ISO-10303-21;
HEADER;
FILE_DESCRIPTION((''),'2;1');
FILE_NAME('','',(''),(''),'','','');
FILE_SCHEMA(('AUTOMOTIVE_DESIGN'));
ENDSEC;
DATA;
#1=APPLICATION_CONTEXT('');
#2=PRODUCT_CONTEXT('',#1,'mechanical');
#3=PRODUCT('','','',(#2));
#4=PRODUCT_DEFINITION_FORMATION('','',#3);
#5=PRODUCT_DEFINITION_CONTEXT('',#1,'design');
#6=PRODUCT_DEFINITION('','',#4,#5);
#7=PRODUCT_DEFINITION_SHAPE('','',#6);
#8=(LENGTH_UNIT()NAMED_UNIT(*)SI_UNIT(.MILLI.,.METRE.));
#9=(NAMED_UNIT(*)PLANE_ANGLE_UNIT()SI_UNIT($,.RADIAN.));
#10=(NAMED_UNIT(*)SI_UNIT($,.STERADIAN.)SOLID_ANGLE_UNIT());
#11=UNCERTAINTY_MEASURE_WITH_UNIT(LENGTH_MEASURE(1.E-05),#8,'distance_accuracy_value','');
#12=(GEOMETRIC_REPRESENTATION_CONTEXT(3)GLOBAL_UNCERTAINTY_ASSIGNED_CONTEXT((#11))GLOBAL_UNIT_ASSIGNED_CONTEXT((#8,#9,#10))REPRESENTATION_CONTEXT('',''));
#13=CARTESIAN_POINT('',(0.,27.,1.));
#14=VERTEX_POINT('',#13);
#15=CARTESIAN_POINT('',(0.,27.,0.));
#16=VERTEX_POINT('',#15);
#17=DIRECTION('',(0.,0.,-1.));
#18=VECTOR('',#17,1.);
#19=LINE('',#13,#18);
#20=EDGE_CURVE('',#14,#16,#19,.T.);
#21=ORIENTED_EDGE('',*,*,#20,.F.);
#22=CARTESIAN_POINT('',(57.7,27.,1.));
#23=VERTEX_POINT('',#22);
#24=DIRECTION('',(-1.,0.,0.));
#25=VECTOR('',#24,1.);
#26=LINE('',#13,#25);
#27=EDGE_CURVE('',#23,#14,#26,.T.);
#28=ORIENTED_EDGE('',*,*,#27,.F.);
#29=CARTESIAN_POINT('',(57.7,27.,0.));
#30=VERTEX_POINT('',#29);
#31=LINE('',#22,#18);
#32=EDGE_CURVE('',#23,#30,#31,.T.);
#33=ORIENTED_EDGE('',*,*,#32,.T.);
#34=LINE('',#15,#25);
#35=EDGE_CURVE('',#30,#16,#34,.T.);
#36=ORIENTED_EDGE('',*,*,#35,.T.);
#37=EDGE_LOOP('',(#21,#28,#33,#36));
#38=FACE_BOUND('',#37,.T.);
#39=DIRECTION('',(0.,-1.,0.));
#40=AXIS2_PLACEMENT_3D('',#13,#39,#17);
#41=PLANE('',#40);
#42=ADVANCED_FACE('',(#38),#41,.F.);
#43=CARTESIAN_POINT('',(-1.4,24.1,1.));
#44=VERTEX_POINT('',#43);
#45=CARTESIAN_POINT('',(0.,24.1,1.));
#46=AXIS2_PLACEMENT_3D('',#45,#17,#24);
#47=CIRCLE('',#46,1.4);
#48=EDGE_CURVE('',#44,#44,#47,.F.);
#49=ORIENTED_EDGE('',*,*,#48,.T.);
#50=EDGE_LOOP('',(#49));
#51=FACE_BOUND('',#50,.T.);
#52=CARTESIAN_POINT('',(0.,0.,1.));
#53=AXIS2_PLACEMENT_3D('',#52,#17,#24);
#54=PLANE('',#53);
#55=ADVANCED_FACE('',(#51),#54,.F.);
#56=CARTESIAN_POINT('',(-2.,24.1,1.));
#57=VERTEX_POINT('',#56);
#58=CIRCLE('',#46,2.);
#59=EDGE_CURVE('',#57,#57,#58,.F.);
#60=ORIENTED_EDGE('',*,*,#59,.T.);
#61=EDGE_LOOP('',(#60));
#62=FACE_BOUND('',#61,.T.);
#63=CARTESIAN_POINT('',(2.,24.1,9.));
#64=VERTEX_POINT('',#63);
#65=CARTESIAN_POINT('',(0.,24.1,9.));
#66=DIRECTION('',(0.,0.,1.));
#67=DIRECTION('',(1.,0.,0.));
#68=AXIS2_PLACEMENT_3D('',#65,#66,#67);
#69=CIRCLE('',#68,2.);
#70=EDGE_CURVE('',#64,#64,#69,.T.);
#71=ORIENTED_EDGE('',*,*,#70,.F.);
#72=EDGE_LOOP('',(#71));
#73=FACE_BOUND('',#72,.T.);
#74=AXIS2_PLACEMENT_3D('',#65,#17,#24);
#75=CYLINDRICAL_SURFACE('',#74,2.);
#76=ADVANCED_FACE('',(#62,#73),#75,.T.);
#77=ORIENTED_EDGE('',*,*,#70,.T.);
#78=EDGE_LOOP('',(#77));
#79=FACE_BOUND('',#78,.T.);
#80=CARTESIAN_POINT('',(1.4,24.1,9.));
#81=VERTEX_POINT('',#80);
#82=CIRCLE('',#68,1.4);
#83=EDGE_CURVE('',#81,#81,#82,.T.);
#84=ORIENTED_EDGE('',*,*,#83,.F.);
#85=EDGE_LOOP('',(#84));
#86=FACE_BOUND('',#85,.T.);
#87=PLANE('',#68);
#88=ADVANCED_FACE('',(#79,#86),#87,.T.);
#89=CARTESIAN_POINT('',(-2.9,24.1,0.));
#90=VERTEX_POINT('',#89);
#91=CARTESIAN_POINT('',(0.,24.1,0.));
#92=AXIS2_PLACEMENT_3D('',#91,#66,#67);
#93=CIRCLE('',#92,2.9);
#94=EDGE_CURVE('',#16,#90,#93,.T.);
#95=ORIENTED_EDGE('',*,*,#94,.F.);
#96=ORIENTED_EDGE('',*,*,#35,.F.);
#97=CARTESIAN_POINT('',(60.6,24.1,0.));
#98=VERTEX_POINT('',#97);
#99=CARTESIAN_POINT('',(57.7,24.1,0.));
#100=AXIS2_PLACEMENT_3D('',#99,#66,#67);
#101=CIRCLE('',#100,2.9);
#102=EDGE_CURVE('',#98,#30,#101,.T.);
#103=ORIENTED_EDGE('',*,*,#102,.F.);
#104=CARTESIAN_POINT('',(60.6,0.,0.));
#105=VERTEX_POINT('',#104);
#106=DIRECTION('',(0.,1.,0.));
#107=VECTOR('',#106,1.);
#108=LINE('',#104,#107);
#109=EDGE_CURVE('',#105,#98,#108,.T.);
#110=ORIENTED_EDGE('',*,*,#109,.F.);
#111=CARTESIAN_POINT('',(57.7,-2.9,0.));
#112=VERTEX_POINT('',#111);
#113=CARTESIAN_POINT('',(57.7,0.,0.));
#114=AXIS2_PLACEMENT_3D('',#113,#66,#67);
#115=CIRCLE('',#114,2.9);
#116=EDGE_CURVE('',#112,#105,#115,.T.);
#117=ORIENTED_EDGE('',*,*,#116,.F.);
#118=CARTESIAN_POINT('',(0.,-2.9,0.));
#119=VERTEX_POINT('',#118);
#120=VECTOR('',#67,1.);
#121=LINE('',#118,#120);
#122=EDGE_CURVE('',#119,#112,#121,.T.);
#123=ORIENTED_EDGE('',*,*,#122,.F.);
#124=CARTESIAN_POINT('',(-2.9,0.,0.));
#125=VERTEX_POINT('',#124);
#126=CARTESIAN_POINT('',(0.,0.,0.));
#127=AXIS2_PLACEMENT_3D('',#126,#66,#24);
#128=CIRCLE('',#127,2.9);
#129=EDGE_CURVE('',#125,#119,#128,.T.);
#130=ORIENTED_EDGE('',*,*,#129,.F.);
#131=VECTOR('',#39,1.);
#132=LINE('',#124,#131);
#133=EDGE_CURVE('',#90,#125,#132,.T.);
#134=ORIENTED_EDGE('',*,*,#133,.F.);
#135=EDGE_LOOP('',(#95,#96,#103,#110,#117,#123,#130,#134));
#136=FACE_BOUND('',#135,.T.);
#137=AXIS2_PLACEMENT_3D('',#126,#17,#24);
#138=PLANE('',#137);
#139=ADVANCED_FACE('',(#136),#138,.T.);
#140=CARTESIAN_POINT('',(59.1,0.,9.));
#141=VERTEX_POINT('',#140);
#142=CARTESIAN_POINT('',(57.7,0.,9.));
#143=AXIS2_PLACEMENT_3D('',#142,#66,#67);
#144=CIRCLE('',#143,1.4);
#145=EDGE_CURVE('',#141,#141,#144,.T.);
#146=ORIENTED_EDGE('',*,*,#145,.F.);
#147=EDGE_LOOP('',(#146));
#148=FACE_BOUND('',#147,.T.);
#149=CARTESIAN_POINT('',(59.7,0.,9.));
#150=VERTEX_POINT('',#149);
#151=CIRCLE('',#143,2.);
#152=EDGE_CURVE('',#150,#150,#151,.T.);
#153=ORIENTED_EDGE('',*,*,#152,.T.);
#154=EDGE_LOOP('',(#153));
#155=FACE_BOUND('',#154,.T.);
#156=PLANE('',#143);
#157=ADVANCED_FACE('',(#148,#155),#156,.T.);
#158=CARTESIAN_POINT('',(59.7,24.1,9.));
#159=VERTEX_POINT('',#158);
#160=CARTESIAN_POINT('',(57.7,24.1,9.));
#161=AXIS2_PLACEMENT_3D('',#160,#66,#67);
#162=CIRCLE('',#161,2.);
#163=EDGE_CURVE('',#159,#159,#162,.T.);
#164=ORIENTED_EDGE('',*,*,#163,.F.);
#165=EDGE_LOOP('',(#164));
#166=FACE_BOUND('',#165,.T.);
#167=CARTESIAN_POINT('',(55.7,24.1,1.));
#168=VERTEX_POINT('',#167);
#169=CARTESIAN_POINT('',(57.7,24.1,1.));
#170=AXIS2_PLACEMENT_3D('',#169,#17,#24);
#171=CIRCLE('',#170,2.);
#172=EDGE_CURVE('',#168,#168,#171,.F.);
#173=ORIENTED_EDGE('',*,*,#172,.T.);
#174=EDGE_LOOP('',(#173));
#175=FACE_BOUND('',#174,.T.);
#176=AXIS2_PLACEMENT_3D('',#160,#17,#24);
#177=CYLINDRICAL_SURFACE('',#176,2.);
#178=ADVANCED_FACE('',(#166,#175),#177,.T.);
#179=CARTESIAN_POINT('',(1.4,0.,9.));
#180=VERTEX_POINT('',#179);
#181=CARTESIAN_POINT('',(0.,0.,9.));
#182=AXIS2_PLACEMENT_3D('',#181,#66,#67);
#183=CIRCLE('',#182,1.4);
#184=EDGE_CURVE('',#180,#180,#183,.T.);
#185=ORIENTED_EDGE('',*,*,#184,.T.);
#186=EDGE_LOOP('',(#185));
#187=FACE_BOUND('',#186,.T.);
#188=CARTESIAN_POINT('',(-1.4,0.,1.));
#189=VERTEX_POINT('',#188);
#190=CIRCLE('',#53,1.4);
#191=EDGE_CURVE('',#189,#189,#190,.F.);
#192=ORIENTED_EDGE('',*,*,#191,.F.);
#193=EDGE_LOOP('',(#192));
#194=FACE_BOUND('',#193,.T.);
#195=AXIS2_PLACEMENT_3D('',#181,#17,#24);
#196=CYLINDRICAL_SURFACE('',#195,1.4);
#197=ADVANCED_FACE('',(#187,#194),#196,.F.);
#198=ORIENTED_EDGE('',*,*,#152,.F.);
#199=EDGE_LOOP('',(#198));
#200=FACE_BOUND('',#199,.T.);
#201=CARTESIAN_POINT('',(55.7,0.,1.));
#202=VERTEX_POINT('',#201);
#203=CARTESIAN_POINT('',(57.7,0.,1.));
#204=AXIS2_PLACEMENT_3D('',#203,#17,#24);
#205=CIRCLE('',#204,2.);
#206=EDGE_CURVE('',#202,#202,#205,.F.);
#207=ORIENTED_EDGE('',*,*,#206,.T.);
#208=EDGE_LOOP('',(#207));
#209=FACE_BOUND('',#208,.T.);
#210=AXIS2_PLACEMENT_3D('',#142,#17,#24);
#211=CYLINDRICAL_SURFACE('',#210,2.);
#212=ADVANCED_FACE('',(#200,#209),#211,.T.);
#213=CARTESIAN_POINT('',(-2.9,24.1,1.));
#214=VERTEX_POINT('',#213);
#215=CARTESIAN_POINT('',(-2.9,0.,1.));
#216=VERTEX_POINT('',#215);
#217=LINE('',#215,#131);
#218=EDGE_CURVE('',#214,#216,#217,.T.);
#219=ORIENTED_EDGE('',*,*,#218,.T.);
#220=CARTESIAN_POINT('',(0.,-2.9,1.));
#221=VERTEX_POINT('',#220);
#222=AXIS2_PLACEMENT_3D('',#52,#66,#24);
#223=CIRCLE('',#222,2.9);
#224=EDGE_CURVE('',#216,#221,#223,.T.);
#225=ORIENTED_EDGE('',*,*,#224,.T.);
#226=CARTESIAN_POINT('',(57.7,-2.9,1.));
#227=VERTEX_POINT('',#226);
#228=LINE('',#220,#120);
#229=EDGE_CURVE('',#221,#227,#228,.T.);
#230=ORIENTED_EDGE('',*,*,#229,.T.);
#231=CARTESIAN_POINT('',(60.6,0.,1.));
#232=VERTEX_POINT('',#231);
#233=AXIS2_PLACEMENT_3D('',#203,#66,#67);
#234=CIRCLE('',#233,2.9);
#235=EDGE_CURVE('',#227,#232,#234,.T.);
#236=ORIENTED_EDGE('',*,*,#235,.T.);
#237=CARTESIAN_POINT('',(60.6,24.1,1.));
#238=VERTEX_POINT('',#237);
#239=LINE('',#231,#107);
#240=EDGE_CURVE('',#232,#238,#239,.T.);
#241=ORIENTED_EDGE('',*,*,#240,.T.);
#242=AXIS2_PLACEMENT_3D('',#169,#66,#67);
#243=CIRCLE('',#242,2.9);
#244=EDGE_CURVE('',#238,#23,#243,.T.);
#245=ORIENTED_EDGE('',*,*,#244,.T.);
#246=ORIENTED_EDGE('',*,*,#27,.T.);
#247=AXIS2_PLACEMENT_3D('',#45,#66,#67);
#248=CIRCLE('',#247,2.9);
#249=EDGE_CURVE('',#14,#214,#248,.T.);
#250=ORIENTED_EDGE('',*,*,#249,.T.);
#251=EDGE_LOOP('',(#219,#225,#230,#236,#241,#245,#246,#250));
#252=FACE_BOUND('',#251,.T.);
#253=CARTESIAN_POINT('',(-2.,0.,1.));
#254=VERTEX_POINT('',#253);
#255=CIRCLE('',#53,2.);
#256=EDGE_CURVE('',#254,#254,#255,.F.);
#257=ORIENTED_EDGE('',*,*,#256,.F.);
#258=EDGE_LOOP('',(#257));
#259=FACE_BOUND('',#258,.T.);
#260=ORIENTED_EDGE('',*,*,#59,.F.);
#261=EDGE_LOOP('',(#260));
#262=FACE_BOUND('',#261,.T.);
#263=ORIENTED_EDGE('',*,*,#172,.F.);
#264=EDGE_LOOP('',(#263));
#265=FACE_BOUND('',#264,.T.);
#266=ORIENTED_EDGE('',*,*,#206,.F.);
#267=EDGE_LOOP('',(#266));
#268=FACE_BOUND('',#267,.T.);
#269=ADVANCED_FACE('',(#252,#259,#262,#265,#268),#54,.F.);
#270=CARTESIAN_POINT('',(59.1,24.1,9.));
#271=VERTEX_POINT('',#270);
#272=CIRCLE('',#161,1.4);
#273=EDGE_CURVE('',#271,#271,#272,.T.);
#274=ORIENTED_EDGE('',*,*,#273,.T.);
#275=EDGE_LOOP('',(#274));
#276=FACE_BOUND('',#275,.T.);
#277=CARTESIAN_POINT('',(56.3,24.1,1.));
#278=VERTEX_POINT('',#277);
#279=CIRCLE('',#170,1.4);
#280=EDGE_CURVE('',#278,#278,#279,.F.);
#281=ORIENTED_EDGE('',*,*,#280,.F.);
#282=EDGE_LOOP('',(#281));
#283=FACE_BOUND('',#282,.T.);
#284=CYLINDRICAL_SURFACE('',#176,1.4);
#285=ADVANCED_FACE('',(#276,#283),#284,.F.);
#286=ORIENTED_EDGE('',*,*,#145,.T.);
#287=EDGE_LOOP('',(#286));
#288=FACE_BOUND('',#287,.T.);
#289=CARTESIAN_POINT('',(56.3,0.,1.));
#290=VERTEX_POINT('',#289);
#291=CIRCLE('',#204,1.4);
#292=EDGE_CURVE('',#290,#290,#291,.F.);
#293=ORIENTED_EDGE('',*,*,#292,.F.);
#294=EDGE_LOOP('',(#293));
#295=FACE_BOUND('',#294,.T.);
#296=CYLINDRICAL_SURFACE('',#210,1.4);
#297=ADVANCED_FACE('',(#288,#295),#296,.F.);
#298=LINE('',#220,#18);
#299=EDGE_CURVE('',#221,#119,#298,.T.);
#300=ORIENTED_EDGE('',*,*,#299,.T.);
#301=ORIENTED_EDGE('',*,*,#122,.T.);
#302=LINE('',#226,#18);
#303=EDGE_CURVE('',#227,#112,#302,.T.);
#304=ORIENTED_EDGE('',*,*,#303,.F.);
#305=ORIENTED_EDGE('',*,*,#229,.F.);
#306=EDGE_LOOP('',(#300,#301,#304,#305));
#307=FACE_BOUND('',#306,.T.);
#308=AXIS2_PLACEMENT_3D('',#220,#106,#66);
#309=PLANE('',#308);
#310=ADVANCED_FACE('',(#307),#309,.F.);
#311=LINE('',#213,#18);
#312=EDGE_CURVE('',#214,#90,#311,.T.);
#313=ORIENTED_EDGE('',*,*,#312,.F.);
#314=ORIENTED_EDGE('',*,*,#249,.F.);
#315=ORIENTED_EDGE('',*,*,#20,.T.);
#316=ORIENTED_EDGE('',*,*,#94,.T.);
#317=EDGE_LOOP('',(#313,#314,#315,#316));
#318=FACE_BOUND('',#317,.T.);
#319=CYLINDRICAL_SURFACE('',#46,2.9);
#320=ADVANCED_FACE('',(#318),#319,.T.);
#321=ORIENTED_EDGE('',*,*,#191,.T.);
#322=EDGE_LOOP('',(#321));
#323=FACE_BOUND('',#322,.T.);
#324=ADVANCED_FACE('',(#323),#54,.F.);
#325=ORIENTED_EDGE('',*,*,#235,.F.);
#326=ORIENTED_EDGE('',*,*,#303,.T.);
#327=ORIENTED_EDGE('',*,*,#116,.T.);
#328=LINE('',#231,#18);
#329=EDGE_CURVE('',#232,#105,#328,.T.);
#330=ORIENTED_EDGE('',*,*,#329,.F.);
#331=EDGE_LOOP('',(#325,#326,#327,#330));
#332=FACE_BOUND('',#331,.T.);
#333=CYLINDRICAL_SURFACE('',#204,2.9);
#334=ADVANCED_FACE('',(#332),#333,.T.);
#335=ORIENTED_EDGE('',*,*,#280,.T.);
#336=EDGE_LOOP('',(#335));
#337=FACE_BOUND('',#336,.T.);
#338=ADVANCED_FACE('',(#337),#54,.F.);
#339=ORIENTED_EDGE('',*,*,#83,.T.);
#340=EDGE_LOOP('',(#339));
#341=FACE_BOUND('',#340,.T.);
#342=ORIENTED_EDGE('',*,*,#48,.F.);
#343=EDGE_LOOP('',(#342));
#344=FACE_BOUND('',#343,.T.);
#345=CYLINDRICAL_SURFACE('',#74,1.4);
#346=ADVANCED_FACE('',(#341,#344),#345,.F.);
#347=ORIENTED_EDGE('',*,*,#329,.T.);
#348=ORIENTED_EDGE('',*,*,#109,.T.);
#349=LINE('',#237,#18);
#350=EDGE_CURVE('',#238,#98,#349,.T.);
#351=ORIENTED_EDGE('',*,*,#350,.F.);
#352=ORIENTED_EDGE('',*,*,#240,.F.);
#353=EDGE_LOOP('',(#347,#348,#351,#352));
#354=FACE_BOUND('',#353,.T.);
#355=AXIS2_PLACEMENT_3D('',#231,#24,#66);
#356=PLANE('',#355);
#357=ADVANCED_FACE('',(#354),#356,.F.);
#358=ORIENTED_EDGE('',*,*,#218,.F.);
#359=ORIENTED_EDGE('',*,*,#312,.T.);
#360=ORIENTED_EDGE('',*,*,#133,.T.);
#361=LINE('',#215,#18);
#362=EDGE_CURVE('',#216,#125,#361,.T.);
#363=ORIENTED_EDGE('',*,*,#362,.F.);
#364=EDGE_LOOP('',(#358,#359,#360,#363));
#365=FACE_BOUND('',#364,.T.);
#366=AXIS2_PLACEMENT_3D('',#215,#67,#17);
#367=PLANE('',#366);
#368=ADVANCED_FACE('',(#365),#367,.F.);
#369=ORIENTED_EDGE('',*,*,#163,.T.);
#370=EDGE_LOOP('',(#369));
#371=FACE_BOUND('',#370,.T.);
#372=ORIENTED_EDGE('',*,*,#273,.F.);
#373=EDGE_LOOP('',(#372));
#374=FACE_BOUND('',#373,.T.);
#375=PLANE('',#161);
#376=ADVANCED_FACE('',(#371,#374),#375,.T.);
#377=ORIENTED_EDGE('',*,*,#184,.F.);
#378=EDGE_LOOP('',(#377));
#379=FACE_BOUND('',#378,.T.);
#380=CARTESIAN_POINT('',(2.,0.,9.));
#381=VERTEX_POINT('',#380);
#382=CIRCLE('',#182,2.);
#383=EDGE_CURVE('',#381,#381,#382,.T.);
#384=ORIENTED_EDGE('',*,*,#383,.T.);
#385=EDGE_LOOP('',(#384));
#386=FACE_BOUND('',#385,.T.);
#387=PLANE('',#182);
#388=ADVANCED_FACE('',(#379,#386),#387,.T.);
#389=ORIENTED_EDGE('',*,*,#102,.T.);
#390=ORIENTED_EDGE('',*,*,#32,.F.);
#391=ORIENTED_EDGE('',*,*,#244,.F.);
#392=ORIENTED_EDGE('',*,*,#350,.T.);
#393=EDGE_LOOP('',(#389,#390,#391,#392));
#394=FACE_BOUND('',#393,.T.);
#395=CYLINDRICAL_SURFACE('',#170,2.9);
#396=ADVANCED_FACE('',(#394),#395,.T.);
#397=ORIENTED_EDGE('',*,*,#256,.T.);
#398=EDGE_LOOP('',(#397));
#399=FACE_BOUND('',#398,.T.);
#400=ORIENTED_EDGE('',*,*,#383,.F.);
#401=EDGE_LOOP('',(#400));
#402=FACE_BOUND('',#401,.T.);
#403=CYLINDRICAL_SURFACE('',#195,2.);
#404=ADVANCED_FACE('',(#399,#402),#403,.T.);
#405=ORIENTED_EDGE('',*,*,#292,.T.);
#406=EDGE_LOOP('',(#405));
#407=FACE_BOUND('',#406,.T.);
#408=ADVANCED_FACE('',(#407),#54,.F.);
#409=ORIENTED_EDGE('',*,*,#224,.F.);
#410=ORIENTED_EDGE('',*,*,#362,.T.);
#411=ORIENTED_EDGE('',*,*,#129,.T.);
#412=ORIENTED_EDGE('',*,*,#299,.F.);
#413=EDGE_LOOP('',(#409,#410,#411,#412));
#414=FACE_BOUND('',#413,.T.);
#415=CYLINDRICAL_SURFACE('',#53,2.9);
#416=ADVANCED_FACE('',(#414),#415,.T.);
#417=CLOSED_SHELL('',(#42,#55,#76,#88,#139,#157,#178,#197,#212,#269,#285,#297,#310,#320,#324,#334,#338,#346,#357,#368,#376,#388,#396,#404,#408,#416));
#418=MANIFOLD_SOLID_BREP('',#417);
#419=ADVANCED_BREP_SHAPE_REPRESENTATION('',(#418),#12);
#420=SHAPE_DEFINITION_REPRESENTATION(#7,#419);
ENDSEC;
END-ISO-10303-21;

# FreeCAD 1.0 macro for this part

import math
import FreeCAD as App
import Part
import Sketcher
from FreeCAD import Vector
Q = App.Units.Quantity

doc = App.newDocument("Part")
body = doc.addObject("PartDesign::Body", "Body")

sketch1 = body.newObject("Sketcher::SketchObject", "Sketch")
sketch1.AttachmentSupport = (doc.getObject("XY_Plane"), [""])
sketch1.MapMode = "FlatFace"
sketch1.addGeometry([
    Part.LineSegment(Vector(0, -2.9, 0), Vector(57.7, -2.9, 0)),
    Part.ArcOfCircle(Part.Circle(Vector(57.7, 0, 0), Vector(0, 0, 1), 2.9), math.radians(-90), math.radians(0)),
    Part.LineSegment(Vector(60.6, 0, 0), Vector(60.6, 24.1, 0)),
    Part.ArcOfCircle(Part.Circle(Vector(57.7, 24.1, 0), Vector(0, 0, 1), 2.9), math.radians(0), math.radians(90)),
    Part.LineSegment(Vector(57.7, 27, 0), Vector(0, 27, 0)),
    Part.ArcOfCircle(Part.Circle(Vector(0, 24.1, 0), Vector(0, 0, 1), 2.9), math.radians(90), math.radians(180)),
    Part.LineSegment(Vector(-2.9, 24.1, 0), Vector(-2.9, 0, 0)),
    Part.ArcOfCircle(Part.Circle(Vector(0, 0, 0), Vector(0, 0, 1), 2.9), math.radians(-180), math.radians(-90)),
], False)
sketch1.addConstraint([
    Sketcher.Constraint("Tangent", 0, 2, 1, 1),
    Sketcher.Constraint("Tangent", 1, 2, 2, 1),
    Sketcher.Constraint("Tangent", 2, 2, 3, 1),
    Sketcher.Constraint("Tangent", 3, 2, 4, 1),
    Sketcher.Constraint("Tangent", 4, 2, 5, 1),
    Sketcher.Constraint("Tangent", 5, 2, 6, 1),
    Sketcher.Constraint("Tangent", 6, 2, 7, 1),
    Sketcher.Constraint("Tangent", 7, 2, 0, 1),
    Sketcher.Constraint("Horizontal", 0),
    Sketcher.Constraint("Vertical", 2),
    Sketcher.Constraint("Horizontal", 4),
    Sketcher.Constraint("Vertical", 6),
    Sketcher.Constraint("Coincident", 7, 3, -1, 1),
    Sketcher.Constraint("Equal", 1, 3),
    Sketcher.Constraint("Equal", 3, 5),
    Sketcher.Constraint("Equal", 5, 7),
    Sketcher.Constraint("Radius", 1, Q("2.9 mm")),
    Sketcher.Constraint("DistanceX", 0, 1, 0, 2, Q("57.7 mm")),
    Sketcher.Constraint("DistanceY", 2, 1, 2, 2, Q("24.1 mm")),
])
pad1 = body.newObject("PartDesign::Pad", "Pad")
pad1.Profile = sketch1
pad1.Length = 1

sketch2 = body.newObject("Sketcher::SketchObject", "Sketch001")
sketch2.AttachmentSupport = (doc.getObject("XY_Plane"), [""])
sketch2.MapMode = "FlatFace"
sketch2.addGeometry([
    Part.Circle(Vector(0, 0, 0), Vector(0, 0, 1), 2),
    Part.Circle(Vector(0, 0, 0), Vector(0, 0, 1), 1.4),
    Part.Circle(Vector(0, 24.1, 0), Vector(0, 0, 1), 2),
    Part.Circle(Vector(0, 24.1, 0), Vector(0, 0, 1), 1.4),
    Part.Circle(Vector(57.7, 0, 0), Vector(0, 0, 1), 2),
    Part.Circle(Vector(57.7, 0, 0), Vector(0, 0, 1), 1.4),
    Part.Circle(Vector(57.7, 24.1, 0), Vector(0, 0, 1), 2),
    Part.Circle(Vector(57.7, 24.1, 0), Vector(0, 0, 1), 1.4),
], False)
sketch2.addConstraint([
    Sketcher.Constraint("Coincident", 0, 3, -1, 1),
    Sketcher.Constraint("Coincident", 1, 3, -1, 1),
    Sketcher.Constraint("Coincident", 3, 3, 2, 3),
    Sketcher.Constraint("Coincident", 5, 3, 4, 3),
    Sketcher.Constraint("Coincident", 7, 3, 6, 3),
    Sketcher.Constraint("Equal", 0, 2),
    Sketcher.Constraint("Equal", 1, 3),
    Sketcher.Constraint("Equal", 2, 4),
    Sketcher.Constraint("Equal", 3, 5),
    Sketcher.Constraint("Equal", 4, 6),
    Sketcher.Constraint("Equal", 5, 7),
    Sketcher.Constraint("PointOnObject", 2, 3, -2),
    Sketcher.Constraint("PointOnObject", 4, 3, -1),
    Sketcher.Constraint("Horizontal", 3, 3, 6, 3),
    Sketcher.Constraint("Vertical", 5, 3, 6, 3),
    Sketcher.Constraint("Diameter", 0, Q("4 mm")),
    Sketcher.Constraint("Diameter", 1, Q("2.8 mm")),
    Sketcher.Constraint("DistanceY", -1, 1, 2, 3, Q("24.1 mm")),
    Sketcher.Constraint("DistanceX", -1, 1, 4, 3, Q("57.7 mm")),
])
pad2 = body.newObject("PartDesign::Pad", "Pad001")
pad2.Profile = sketch2
pad2.Length = 9

doc.recompute()
